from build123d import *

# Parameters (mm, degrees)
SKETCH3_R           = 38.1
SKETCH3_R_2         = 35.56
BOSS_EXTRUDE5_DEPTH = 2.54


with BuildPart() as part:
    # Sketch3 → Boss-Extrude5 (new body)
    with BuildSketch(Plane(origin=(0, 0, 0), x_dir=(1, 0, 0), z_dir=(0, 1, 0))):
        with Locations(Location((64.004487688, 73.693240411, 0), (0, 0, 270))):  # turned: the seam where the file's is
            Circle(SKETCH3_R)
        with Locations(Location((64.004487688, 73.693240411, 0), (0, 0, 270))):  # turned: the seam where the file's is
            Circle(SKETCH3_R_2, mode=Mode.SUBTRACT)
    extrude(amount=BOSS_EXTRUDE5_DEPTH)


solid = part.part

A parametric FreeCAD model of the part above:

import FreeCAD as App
import Part
import Sketcher
Q = App.Units.Quantity

doc = App.newDocument("Part")
params = doc.addObject("Spreadsheet::Sheet", "Params")
for row, (alias, value) in enumerate([
    ("sketch1_diameter", "3 in"),
    ("sketch1_diameter2", "2.8 in"),
    ("pad1_length", "0.1 in"),
], start=1):
    params.set(f"A{row}", alias)
    params.set(f"B{row}", "=" + value)
    params.setAlias(f"B{row}", alias)

body = doc.addObject("PartDesign::Body", "Body")

sketch1 = body.newObject("Sketcher::SketchObject", "Sketch")
sketch1.AttachmentSupport = (doc.getObject("XZ_Plane"), [""])
sketch1.MapMode = "FlatFace"
sketch1.addGeometry([
    Part.Circle(App.Vector(64, -74, 0), App.Vector(0, 0, 1), 38),
    Part.Circle(App.Vector(64, -74, 0), App.Vector(0, 0, 1), 36),
], False)
sketch1.addConstraint([
    Sketcher.Constraint("Coincident", 1, 3, 0, 3),
    Sketcher.Constraint("Diameter", 0, Q("3 in")),
    Sketcher.Constraint("Diameter", 1, Q("2.8 in")),
    Sketcher.Constraint("DistanceY", 0, 3, -1, 1, 73.69324),
    Sketcher.Constraint("DistanceX", -1, 1, 0, 3, 64.004488),
])
sketch1.setExpression("Constraints[1]", "Params.sketch1_diameter")
sketch1.setExpression("Constraints[2]", "Params.sketch1_diameter2")
pad1 = body.newObject("PartDesign::Pad", "Pad")
pad1.Profile = sketch1
pad1.setExpression("Length", "Params.pad1_length")
pad1.Reversed = True

doc.recompute()
